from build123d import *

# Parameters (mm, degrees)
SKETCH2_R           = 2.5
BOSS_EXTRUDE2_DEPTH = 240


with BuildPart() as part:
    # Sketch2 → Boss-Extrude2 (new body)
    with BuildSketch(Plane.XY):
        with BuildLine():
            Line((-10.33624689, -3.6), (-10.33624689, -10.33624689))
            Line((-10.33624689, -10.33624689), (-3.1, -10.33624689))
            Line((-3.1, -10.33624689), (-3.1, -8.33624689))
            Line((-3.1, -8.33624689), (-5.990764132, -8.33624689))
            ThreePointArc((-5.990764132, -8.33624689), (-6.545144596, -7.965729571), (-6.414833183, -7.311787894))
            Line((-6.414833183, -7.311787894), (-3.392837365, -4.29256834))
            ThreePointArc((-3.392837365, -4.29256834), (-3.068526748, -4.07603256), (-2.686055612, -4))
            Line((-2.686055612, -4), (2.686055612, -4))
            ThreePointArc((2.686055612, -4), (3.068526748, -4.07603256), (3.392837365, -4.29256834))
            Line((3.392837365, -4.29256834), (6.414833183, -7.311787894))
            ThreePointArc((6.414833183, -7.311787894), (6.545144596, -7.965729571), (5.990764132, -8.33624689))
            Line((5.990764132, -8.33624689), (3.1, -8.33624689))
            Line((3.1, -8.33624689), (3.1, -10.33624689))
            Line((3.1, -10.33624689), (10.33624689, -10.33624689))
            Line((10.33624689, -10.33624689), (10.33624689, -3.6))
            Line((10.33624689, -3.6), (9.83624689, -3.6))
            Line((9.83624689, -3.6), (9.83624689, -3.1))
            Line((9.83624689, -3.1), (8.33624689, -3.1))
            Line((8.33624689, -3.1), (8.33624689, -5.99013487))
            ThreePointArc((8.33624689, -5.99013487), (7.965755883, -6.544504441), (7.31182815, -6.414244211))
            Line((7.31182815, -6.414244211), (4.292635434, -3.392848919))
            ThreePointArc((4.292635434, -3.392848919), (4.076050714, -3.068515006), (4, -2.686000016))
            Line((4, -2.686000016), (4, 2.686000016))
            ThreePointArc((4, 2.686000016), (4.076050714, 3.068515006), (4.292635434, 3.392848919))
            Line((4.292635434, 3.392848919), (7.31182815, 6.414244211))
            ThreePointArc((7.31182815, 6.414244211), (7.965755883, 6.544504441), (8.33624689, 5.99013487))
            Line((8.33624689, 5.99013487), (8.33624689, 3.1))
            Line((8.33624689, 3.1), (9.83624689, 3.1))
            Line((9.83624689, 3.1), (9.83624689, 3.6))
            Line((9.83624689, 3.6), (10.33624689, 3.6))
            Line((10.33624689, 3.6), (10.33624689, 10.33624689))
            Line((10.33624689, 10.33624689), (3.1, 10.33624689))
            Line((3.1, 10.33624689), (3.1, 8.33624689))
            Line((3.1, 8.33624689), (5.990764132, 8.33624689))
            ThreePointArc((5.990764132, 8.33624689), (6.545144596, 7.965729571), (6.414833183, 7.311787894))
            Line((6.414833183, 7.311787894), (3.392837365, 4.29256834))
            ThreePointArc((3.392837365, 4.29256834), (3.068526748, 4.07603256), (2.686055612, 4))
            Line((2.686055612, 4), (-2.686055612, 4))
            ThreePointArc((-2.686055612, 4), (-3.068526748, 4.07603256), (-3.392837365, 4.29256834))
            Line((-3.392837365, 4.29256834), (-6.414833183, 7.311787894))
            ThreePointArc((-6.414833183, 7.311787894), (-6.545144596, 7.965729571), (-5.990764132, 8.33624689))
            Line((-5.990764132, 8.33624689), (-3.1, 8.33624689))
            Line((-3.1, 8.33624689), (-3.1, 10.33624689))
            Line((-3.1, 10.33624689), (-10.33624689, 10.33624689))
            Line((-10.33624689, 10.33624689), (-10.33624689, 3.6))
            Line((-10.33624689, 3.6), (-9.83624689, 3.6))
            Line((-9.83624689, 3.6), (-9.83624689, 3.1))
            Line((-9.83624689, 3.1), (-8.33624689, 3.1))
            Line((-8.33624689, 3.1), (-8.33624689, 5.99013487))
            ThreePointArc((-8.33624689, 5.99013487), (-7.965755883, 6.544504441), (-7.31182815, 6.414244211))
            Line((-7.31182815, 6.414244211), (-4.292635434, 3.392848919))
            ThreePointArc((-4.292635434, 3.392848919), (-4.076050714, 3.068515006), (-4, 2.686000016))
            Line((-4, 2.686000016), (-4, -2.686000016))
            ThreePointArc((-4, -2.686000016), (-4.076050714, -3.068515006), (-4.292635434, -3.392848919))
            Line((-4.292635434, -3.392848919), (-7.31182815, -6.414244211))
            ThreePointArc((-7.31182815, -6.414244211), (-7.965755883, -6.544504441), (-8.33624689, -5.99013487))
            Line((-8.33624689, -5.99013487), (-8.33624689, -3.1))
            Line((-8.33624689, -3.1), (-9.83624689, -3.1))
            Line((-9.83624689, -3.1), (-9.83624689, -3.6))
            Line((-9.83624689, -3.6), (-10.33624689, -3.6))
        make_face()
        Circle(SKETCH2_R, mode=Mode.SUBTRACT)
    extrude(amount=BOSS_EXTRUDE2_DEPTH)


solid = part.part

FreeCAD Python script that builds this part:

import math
import FreeCAD as App
import Part
import Sketcher

doc = App.newDocument("Part")
body = doc.addObject("PartDesign::Body", "Body")

# Sketch on XY plane
sketch1 = doc.addObject("Sketcher::SketchObject", "Sketch")
body.addObject(sketch1)
sketch1.AttachmentSupport = (doc.XY_Plane, [""])
sketch1.MapMode = "FlatFace"
sketch1.addGeometry([
    Part.LineSegment(App.Vector(-10.3, -3.6, 0), App.Vector(-10.3, -10.3, 0)),  # 0
    Part.LineSegment(App.Vector(-10.3, -10.3, 0), App.Vector(-3.1, -10.3, 0)),  # 1
    Part.LineSegment(App.Vector(-3.1, -10.3, 0), App.Vector(-3.1, -8.3, 0)),  # 2
    Part.LineSegment(App.Vector(-3.1, -8.3, 0), App.Vector(-6, -8.3, 0)),  # 3
    Part.ArcOfCircle(Part.Circle(App.Vector(-6, -7.7, 0), App.Vector(0, 0, 1), 0.6), math.radians(135), math.radians(270)),  # 4
    Part.LineSegment(App.Vector(-6.4, -7.3, 0), App.Vector(-3.4, -4.3, 0)),  # 5
    Part.ArcOfCircle(Part.Circle(App.Vector(-2.7, -5, 0), App.Vector(0, 0, 1), 1), math.radians(90), math.radians(135)),  # 6
    Part.LineSegment(App.Vector(-2.7, -4, 0), App.Vector(2.7, -4, 0)),  # 7
    Part.ArcOfCircle(Part.Circle(App.Vector(2.7, -5, 0), App.Vector(0, 0, 1), 1), math.radians(45), math.radians(90)),  # 8
    Part.LineSegment(App.Vector(3.4, -4.3, 0), App.Vector(6.4, -7.3, 0)),  # 9
    Part.ArcOfCircle(Part.Circle(App.Vector(6, -7.7, 0), App.Vector(0, 0, 1), 0.6), math.radians(-90), math.radians(45)),  # 10
    Part.LineSegment(App.Vector(6, -8.3, 0), App.Vector(3.1, -8.3, 0)),  # 11
    Part.LineSegment(App.Vector(3.1, -8.3, 0), App.Vector(3.1, -10.3, 0)),  # 12
    Part.LineSegment(App.Vector(3.1, -10.3, 0), App.Vector(10.3, -10.3, 0)),  # 13
    Part.LineSegment(App.Vector(10.3, -10.3, 0), App.Vector(10.3, -3.6, 0)),  # 14
    Part.LineSegment(App.Vector(10.3, -3.6, 0), App.Vector(9.8, -3.6, 0)),  # 15
    Part.LineSegment(App.Vector(9.8, -3.6, 0), App.Vector(9.8, -3.1, 0)),  # 16
    Part.LineSegment(App.Vector(9.8, -3.1, 0), App.Vector(8.3, -3.1, 0)),  # 17
    Part.LineSegment(App.Vector(8.3, -3.1, 0), App.Vector(8.3, -6, 0)),  # 18
    Part.ArcOfCircle(Part.Circle(App.Vector(7.7, -6, 0), App.Vector(0, 0, 1), 0.6), math.radians(-135), math.radians(0)),  # 19
    Part.LineSegment(App.Vector(7.3, -6.4, 0), App.Vector(4.3, -3.4, 0)),  # 20
    Part.ArcOfCircle(Part.Circle(App.Vector(5, -2.7, 0), App.Vector(0, 0, 1), 1), math.radians(180), math.radians(225)),  # 21
    Part.LineSegment(App.Vector(4, -2.7, 0), App.Vector(4, 2.7, 0)),  # 22
    Part.ArcOfCircle(Part.Circle(App.Vector(5, 2.7, 0), App.Vector(0, 0, 1), 1), math.radians(135), math.radians(180)),  # 23
    Part.LineSegment(App.Vector(4.3, 3.4, 0), App.Vector(7.3, 6.4, 0)),  # 24
    Part.ArcOfCircle(Part.Circle(App.Vector(7.7, 6, 0), App.Vector(0, 0, 1), 0.6), math.radians(0), math.radians(135)),  # 25
    Part.LineSegment(App.Vector(8.3, 6, 0), App.Vector(8.3, 3.1, 0)),  # 26
    Part.LineSegment(App.Vector(8.3, 3.1, 0), App.Vector(9.8, 3.1, 0)),  # 27
    Part.LineSegment(App.Vector(9.8, 3.1, 0), App.Vector(9.8, 3.6, 0)),  # 28
    Part.LineSegment(App.Vector(9.8, 3.6, 0), App.Vector(10.3, 3.6, 0)),  # 29
    Part.LineSegment(App.Vector(10.3, 3.6, 0), App.Vector(10.3, 10.3, 0)),  # 30
    Part.LineSegment(App.Vector(10.3, 10.3, 0), App.Vector(3.1, 10.3, 0)),  # 31
    Part.LineSegment(App.Vector(3.1, 10.3, 0), App.Vector(3.1, 8.3, 0)),  # 32
    Part.LineSegment(App.Vector(3.1, 8.3, 0), App.Vector(6, 8.3, 0)),  # 33
    Part.ArcOfCircle(Part.Circle(App.Vector(6, 7.7, 0), App.Vector(0, 0, 1), 0.6), math.radians(-45), math.radians(90)),  # 34
    Part.LineSegment(App.Vector(6.4, 7.3, 0), App.Vector(3.4, 4.3, 0)),  # 35
    Part.ArcOfCircle(Part.Circle(App.Vector(2.7, 5, 0), App.Vector(0, 0, 1), 1), math.radians(-90), math.radians(-45)),  # 36
    Part.LineSegment(App.Vector(2.7, 4, 0), App.Vector(-2.7, 4, 0)),  # 37
    Part.ArcOfCircle(Part.Circle(App.Vector(-2.7, 5, 0), App.Vector(0, 0, 1), 1), math.radians(-135), math.radians(-90)),  # 38
    Part.LineSegment(App.Vector(-3.4, 4.3, 0), App.Vector(-6.4, 7.3, 0)),  # 39
    Part.ArcOfCircle(Part.Circle(App.Vector(-6, 7.7, 0), App.Vector(0, 0, 1), 0.6), math.radians(90), math.radians(225)),  # 40
    Part.LineSegment(App.Vector(-6, 8.3, 0), App.Vector(-3.1, 8.3, 0)),  # 41
    Part.LineSegment(App.Vector(-3.1, 8.3, 0), App.Vector(-3.1, 10.3, 0)),  # 42
    Part.LineSegment(App.Vector(-3.1, 10.3, 0), App.Vector(-10.3, 10.3, 0)),  # 43
    Part.LineSegment(App.Vector(-10.3, 10.3, 0), App.Vector(-10.3, 3.6, 0)),  # 44
    Part.LineSegment(App.Vector(-10.3, 3.6, 0), App.Vector(-9.8, 3.6, 0)),  # 45
    Part.LineSegment(App.Vector(-9.8, 3.6, 0), App.Vector(-9.8, 3.1, 0)),  # 46
    Part.LineSegment(App.Vector(-9.8, 3.1, 0), App.Vector(-8.3, 3.1, 0)),  # 47
    Part.LineSegment(App.Vector(-8.3, 3.1, 0), App.Vector(-8.3, 6, 0)),  # 48
    Part.ArcOfCircle(Part.Circle(App.Vector(-7.7, 6, 0), App.Vector(0, 0, 1), 0.6), math.radians(45), math.radians(180)),  # 49
    Part.LineSegment(App.Vector(-7.3, 6.4, 0), App.Vector(-4.3, 3.4, 0)),  # 50
    Part.ArcOfCircle(Part.Circle(App.Vector(-5, 2.7, 0), App.Vector(0, 0, 1), 1), math.radians(0), math.radians(45)),  # 51
    Part.LineSegment(App.Vector(-4, 2.7, 0), App.Vector(-4, -2.7, 0)),  # 52
    Part.ArcOfCircle(Part.Circle(App.Vector(-5, -2.7, 0), App.Vector(0, 0, 1), 1), math.radians(-45), math.radians(0)),  # 53
    Part.LineSegment(App.Vector(-4.3, -3.4, 0), App.Vector(-7.3, -6.4, 0)),  # 54
    Part.ArcOfCircle(Part.Circle(App.Vector(-7.7, -6, 0), App.Vector(0, 0, 1), 0.6), math.radians(-180), math.radians(-45)),  # 55
    Part.LineSegment(App.Vector(-8.3, -6, 0), App.Vector(-8.3, -3.1, 0)),  # 56
    Part.LineSegment(App.Vector(-8.3, -3.1, 0), App.Vector(-9.8, -3.1, 0)),  # 57
    Part.LineSegment(App.Vector(-9.8, -3.1, 0), App.Vector(-9.8, -3.6, 0)),  # 58
    Part.LineSegment(App.Vector(-9.8, -3.6, 0), App.Vector(-10.3, -3.6, 0)),  # 59
    Part.Circle(App.Vector(0, 0, 0), App.Vector(0, 0, 1), 2.5),  # 60
], False)
sketch1.addConstraint([
    Sketcher.Constraint("Coincident", 0, 2, 1, 1),
    Sketcher.Constraint("Coincident", 1, 2, 2, 1),
    Sketcher.Constraint("Coincident", 2, 2, 3, 1),
    Sketcher.Constraint("Tangent", 3, 2, 4, 2),
    Sketcher.Constraint("Tangent", 4, 1, 5, 1),
    Sketcher.Constraint("Tangent", 5, 2, 6, 2),
    Sketcher.Constraint("Tangent", 6, 1, 7, 1),
    Sketcher.Constraint("Tangent", 7, 2, 8, 2),
    Sketcher.Constraint("Tangent", 8, 1, 9, 1),
    Sketcher.Constraint("Tangent", 9, 2, 10, 2),
    Sketcher.Constraint("Tangent", 10, 1, 11, 1),
    Sketcher.Constraint("Coincident", 11, 2, 12, 1),
    Sketcher.Constraint("Coincident", 12, 2, 13, 1),
    Sketcher.Constraint("Coincident", 13, 2, 14, 1),
    Sketcher.Constraint("Coincident", 14, 2, 15, 1),
    Sketcher.Constraint("Coincident", 15, 2, 16, 1),
    Sketcher.Constraint("Coincident", 16, 2, 17, 1),
    Sketcher.Constraint("Coincident", 17, 2, 18, 1),
    Sketcher.Constraint("Tangent", 18, 2, 19, 2),
    Sketcher.Constraint("Tangent", 19, 1, 20, 1),
    Sketcher.Constraint("Tangent", 20, 2, 21, 2),
    Sketcher.Constraint("Tangent", 21, 1, 22, 1),
    Sketcher.Constraint("Tangent", 22, 2, 23, 2),
    Sketcher.Constraint("Tangent", 23, 1, 24, 1),
    Sketcher.Constraint("Tangent", 24, 2, 25, 2),
    Sketcher.Constraint("Tangent", 25, 1, 26, 1),
    Sketcher.Constraint("Coincident", 26, 2, 27, 1),
    Sketcher.Constraint("Coincident", 27, 2, 28, 1),
    Sketcher.Constraint("Coincident", 28, 2, 29, 1),
    Sketcher.Constraint("Coincident", 29, 2, 30, 1),
    Sketcher.Constraint("Coincident", 30, 2, 31, 1),
    Sketcher.Constraint("Coincident", 31, 2, 32, 1),
    Sketcher.Constraint("Coincident", 32, 2, 33, 1),
    Sketcher.Constraint("Tangent", 33, 2, 34, 2),
    Sketcher.Constraint("Tangent", 34, 1, 35, 1),
    Sketcher.Constraint("Tangent", 35, 2, 36, 2),
    Sketcher.Constraint("Tangent", 36, 1, 37, 1),
    Sketcher.Constraint("Tangent", 37, 2, 38, 2),
    Sketcher.Constraint("Tangent", 38, 1, 39, 1),
    Sketcher.Constraint("Tangent", 39, 2, 40, 2),
    Sketcher.Constraint("Tangent", 40, 1, 41, 1),
    Sketcher.Constraint("Coincident", 41, 2, 42, 1),
    Sketcher.Constraint("Coincident", 42, 2, 43, 1),
    Sketcher.Constraint("Coincident", 43, 2, 44, 1),
    Sketcher.Constraint("Coincident", 44, 2, 45, 1),
    Sketcher.Constraint("Coincident", 45, 2, 46, 1),
    Sketcher.Constraint("Coincident", 46, 2, 47, 1),
    Sketcher.Constraint("Coincident", 47, 2, 48, 1),
    Sketcher.Constraint("Tangent", 48, 2, 49, 2),
    Sketcher.Constraint("Tangent", 49, 1, 50, 1),
    Sketcher.Constraint("Tangent", 50, 2, 51, 2),
    Sketcher.Constraint("Tangent", 51, 1, 52, 1),
    Sketcher.Constraint("Tangent", 52, 2, 53, 2),
    Sketcher.Constraint("Tangent", 53, 1, 54, 1),
    Sketcher.Constraint("Tangent", 54, 2, 55, 2),
    Sketcher.Constraint("Tangent", 55, 1, 56, 1),
    Sketcher.Constraint("Coincident", 56, 2, 57, 1),
    Sketcher.Constraint("Coincident", 57, 2, 58, 1),
    Sketcher.Constraint("Coincident", 58, 2, 59, 1),
    Sketcher.Constraint("Coincident", 59, 2, 0, 1),
    Sketcher.Constraint("Vertical", 0),
    Sketcher.Constraint("Horizontal", 1),
    Sketcher.Constraint("Vertical", 2),
    Sketcher.Constraint("Horizontal", 3),
    Sketcher.Constraint("Horizontal", 7),
    Sketcher.Constraint("Horizontal", 11),
    Sketcher.Constraint("Vertical", 12),
    Sketcher.Constraint("Horizontal", 13),
    Sketcher.Constraint("Vertical", 14),
    Sketcher.Constraint("Horizontal", 15),
    Sketcher.Constraint("Vertical", 16),
    Sketcher.Constraint("Horizontal", 17),
    Sketcher.Constraint("Vertical", 18),
    Sketcher.Constraint("Vertical", 22),
    Sketcher.Constraint("Vertical", 26),
    Sketcher.Constraint("Horizontal", 27),
    Sketcher.Constraint("Vertical", 28),
    Sketcher.Constraint("Horizontal", 29),
    Sketcher.Constraint("Vertical", 30),
    Sketcher.Constraint("Horizontal", 31),
    Sketcher.Constraint("Vertical", 32),
    Sketcher.Constraint("Horizontal", 33),
    Sketcher.Constraint("Horizontal", 37),
    Sketcher.Constraint("Horizontal", 41),
    Sketcher.Constraint("Vertical", 42),
    Sketcher.Constraint("Horizontal", 43),
    Sketcher.Constraint("Vertical", 44),
    Sketcher.Constraint("Horizontal", 45),
    Sketcher.Constraint("Vertical", 46),
    Sketcher.Constraint("Horizontal", 47),
    Sketcher.Constraint("Vertical", 48),
    Sketcher.Constraint("Vertical", 52),
    Sketcher.Constraint("Vertical", 56),
    Sketcher.Constraint("Horizontal", 57),
    Sketcher.Constraint("Vertical", 58),
    Sketcher.Constraint("Horizontal", 59),
    Sketcher.Constraint("Coincident", 60, 3, -1, 1),
    Sketcher.Constraint("Equal", 6, 8),
    Sketcher.Constraint("Equal", 4, 10),
    Sketcher.Constraint("Equal", 10, 19),
    Sketcher.Constraint("Equal", 8, 21),
    Sketcher.Constraint("Equal", 21, 23),
    Sketcher.Constraint("Equal", 19, 25),
    Sketcher.Constraint("Equal", 25, 34),
    Sketcher.Constraint("Equal", 23, 36),
    Sketcher.Constraint("Equal", 36, 38),
    Sketcher.Constraint("Equal", 34, 40),
    Sketcher.Constraint("Equal", 40, 49),
    Sketcher.Constraint("Equal", 38, 51),
    Sketcher.Constraint("Equal", 51, 53),
    Sketcher.Constraint("Equal", 49, 55),
    Sketcher.Constraint("Symmetric", 4, 3, 34, 3, -1, 1),
    Sketcher.Constraint("Symmetric", 6, 3, 36, 3, -1, 1),
    Sketcher.Constraint("Symmetric", 10, 3, 40, 3, -1, 1),
    Sketcher.Constraint("Symmetric", 19, 3, 49, 3, -1, 1),
    Sketcher.Constraint("Symmetric", 21, 3, 51, 3, -1, 1),
    Sketcher.Constraint("Symmetric", 25, 3, 55, 3, -1, 1),
    Sketcher.Constraint("Symmetric", 0, 2, 30, 2, -1, 1),
    Sketcher.Constraint("Symmetric", 12, 2, 42, 2, -1, 1),
    Sketcher.Constraint("Symmetric", 14, 2, 44, 2, -1, 1),
    Sketcher.Constraint("Symmetric", 16, 2, 46, 2, -1, 1),
    Sketcher.Constraint("Symmetric", 27, 2, 57, 2, -1, 1),
    Sketcher.Constraint("Symmetric", 4, 3, 10, 3, -2),
    Sketcher.Constraint("Symmetric", 25, 3, 49, 3, -2),
    Sketcher.Constraint("Symmetric", 1, 2, 12, 2, -2),
    Sketcher.Constraint("Symmetric", 29, 2, 44, 2, -2),
    Sketcher.Constraint("Symmetric", 27, 2, 46, 2, -2),
    Sketcher.Constraint("Parallel", 9, 39),
    Sketcher.Constraint("Parallel", 24, 54),
    Sketcher.Constraint("Horizontal", 23, 3, 51, 3),
    Sketcher.Constraint("Horizontal", 5, 2, 8, 1),
    Sketcher.Constraint("Horizontal", 15, 2, 58, 2),
    Sketcher.Constraint("Vertical", 12, 2, 31, 2),
    Sketcher.Constraint("Equal", 59, 16),
    Sketcher.Constraint("Diameter", 60, 5.0),
    Sketcher.Constraint("Radius", 6, 1.0),
    Sketcher.Constraint("Radius", 4, 0.6),
    Sketcher.Constraint("DistanceY", 2, 1, 2, 2, 2.0),
    Sketcher.Constraint("DistanceX", 15, 2, 15, 1, 0.5),
    Sketcher.Constraint("DistanceX", 17, 2, 17, 1, 1.5),
    Sketcher.Constraint("DistanceY", 6, 3, -1, 1, 5.0),
    Sketcher.Constraint("DistanceX", -1, 1, 21, 3, 5.0),
    Sketcher.Constraint("DistanceX", 1, 2, -1, 1, 3.1),
    Sketcher.Constraint("DistanceY", 14, 2, -1, 1, 3.6),
    Sketcher.Constraint("DistanceY", 22, 1, 22, 2, 5.372),
    Sketcher.Constraint("DistanceX", 7, 1, 7, 2, 5.372111),
    Sketcher.Constraint("Distance", 20, 4.271341),
    Sketcher.Constraint("DistanceX", 1, 1, 1, 2, 7.236247),
    Sketcher.Constraint("DistanceX", 3, 2, 3, 1, 2.890764),
    Sketcher.Constraint("DistanceY", 0, 2, 0, 1, 6.736247),
])
pad1 = doc.addObject("PartDesign::Pad", "Pad")
body.addObject(pad1)
pad1.Profile = sketch1
pad1.Length = 240

doc.recompute()
